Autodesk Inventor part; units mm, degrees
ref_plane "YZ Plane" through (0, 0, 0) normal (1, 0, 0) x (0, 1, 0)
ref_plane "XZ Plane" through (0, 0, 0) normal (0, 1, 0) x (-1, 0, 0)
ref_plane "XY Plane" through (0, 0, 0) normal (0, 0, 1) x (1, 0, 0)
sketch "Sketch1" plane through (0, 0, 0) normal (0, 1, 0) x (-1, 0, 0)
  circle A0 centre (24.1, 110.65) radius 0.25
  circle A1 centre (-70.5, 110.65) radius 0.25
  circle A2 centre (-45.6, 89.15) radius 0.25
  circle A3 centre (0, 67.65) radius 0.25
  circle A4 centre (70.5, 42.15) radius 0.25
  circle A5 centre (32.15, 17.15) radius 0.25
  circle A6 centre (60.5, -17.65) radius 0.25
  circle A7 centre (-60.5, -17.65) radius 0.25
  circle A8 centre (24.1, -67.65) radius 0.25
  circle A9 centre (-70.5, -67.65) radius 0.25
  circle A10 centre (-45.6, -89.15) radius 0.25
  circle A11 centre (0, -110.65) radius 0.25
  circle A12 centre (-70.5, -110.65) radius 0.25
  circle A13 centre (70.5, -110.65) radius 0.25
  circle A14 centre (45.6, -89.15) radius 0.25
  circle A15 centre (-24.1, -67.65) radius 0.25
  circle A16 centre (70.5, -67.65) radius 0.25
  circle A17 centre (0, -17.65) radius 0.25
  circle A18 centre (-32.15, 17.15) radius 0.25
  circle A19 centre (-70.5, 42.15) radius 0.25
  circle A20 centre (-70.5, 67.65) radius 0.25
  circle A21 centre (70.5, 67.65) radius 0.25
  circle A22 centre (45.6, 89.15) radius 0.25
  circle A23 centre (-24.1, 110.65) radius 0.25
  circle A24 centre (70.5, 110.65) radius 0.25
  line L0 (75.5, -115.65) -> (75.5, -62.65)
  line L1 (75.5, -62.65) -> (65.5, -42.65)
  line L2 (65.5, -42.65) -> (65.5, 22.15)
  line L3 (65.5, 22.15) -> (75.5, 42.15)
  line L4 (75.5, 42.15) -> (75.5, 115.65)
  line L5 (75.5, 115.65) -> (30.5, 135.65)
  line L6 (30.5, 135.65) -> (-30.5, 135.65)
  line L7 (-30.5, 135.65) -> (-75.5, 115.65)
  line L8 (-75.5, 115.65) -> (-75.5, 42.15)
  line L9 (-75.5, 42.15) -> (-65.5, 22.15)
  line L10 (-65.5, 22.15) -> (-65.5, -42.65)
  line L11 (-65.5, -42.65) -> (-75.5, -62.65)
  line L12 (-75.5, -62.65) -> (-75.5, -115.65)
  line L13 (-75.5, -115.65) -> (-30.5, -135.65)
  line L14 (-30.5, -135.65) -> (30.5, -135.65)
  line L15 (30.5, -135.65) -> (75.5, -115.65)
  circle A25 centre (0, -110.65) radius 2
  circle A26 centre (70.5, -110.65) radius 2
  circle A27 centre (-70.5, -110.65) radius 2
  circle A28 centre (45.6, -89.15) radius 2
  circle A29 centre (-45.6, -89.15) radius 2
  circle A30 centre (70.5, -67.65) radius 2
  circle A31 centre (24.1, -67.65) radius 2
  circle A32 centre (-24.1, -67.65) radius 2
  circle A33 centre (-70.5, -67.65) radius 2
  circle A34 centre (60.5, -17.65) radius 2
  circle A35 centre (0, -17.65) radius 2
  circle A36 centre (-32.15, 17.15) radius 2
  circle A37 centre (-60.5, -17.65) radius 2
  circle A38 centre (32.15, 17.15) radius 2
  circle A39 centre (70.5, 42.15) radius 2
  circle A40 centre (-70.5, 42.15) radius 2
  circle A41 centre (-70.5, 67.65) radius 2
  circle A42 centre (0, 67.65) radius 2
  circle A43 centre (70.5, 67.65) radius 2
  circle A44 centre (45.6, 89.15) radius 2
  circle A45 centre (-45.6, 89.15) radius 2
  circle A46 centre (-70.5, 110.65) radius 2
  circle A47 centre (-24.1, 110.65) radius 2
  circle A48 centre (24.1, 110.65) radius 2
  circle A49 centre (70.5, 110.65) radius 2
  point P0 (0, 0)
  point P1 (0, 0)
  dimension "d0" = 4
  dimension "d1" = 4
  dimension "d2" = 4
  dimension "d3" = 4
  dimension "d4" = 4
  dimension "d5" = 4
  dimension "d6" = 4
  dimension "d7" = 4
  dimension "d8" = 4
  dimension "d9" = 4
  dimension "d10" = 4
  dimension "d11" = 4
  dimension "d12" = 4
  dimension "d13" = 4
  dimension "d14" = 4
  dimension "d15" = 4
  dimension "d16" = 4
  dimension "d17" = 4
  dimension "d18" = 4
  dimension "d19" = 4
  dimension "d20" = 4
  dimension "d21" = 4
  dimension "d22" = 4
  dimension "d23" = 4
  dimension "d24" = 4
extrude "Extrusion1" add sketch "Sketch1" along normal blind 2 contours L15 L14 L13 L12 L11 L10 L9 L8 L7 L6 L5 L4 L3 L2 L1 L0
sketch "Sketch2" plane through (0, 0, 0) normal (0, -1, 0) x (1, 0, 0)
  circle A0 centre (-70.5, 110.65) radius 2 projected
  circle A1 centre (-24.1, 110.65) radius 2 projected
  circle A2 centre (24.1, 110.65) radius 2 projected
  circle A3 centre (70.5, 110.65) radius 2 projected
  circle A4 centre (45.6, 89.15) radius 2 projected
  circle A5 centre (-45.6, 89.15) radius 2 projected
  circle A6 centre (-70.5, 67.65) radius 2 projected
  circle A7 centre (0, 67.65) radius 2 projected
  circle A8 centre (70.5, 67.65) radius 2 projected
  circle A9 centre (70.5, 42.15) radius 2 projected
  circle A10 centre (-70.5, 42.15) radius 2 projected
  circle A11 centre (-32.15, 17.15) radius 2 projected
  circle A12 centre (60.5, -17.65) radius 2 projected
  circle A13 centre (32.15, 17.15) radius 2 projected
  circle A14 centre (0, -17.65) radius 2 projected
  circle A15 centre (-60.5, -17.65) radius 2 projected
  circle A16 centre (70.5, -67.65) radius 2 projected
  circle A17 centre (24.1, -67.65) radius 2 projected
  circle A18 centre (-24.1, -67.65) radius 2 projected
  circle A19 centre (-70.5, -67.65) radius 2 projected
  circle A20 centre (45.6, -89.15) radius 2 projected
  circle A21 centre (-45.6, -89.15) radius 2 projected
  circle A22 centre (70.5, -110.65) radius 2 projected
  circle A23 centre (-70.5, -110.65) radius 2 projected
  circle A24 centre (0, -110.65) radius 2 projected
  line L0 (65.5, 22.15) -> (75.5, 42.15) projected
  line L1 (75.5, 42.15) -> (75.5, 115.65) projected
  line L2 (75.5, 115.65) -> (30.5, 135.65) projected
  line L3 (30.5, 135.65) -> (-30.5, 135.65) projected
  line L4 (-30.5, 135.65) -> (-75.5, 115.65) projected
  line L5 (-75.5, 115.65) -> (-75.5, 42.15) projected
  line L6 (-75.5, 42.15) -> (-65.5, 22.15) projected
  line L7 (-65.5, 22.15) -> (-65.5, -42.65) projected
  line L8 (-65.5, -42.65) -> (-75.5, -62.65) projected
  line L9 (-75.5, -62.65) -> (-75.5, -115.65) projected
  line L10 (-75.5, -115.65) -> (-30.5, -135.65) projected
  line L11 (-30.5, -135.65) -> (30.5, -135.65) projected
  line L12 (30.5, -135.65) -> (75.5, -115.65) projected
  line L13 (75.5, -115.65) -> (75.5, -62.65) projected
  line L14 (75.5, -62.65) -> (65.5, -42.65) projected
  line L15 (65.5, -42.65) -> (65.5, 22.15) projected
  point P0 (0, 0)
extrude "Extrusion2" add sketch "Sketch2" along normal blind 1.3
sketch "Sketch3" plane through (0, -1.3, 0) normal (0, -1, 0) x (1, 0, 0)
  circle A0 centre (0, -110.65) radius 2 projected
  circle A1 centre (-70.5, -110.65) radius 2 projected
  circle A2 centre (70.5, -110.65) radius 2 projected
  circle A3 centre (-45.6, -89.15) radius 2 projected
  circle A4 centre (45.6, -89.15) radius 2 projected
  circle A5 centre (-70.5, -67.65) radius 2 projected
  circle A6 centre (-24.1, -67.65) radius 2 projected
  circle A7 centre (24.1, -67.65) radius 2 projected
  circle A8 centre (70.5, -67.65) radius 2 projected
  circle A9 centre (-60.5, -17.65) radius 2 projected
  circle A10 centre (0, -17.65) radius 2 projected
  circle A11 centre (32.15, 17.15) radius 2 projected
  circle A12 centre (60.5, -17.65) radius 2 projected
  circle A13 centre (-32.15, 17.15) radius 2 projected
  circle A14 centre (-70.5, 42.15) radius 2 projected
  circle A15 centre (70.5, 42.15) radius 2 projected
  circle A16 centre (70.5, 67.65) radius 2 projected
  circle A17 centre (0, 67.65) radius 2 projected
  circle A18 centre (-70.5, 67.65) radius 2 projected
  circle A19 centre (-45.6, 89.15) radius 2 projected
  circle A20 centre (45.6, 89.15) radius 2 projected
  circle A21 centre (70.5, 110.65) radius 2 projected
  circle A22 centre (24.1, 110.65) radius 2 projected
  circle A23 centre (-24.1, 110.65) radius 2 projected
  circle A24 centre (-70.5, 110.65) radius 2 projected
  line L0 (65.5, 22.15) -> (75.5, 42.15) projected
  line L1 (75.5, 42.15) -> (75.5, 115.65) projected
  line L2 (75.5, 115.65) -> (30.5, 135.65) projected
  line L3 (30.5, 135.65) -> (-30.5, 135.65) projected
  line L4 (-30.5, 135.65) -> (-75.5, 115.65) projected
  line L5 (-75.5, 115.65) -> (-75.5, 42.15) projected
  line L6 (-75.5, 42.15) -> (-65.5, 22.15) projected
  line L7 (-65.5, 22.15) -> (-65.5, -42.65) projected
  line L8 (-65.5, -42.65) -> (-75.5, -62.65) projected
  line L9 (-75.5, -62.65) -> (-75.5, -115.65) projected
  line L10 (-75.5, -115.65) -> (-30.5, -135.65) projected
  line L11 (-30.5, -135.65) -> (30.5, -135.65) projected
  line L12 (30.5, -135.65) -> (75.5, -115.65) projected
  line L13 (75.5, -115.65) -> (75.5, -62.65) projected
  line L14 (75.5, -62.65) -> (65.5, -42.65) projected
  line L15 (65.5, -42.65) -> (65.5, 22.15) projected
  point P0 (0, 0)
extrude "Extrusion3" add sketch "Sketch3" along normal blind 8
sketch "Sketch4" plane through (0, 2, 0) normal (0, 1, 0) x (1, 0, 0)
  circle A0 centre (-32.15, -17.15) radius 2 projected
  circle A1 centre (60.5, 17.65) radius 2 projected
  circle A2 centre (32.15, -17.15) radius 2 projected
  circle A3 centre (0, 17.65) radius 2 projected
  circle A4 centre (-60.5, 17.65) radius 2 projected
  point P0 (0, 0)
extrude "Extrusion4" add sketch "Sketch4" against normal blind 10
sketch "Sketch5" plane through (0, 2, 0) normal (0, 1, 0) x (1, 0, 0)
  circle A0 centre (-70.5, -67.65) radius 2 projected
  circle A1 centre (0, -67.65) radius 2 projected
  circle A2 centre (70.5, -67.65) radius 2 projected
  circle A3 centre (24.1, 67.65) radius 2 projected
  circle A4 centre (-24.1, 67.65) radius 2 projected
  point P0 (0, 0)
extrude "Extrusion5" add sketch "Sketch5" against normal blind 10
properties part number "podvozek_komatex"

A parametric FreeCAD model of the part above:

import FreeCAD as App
import Part
import Sketcher
from FreeCAD import Vector


def add_polygon(sketch, points):
    """Adds a closed chain of lines whose ends are joined by coincident constraints."""
    first, n = sketch.GeometryCount, len(points)
    for a, b in zip(points, points[1:] + points[:1]):
        sketch.addGeometry(Part.LineSegment(App.Vector(*a, 0), App.Vector(*b, 0)), False)
    for i in range(n):
        sketch.addConstraint(Sketcher.Constraint("Coincident", first + i, 2, first + (i + 1) % n, 1))

doc = App.newDocument("Part")
body = doc.addObject("PartDesign::Body", "Body")

# Sketch on XZ plane
sketch1 = doc.addObject("Sketcher::SketchObject", "Sketch")
body.addObject(sketch1)
sketch1.AttachmentSupport = (doc.XZ_Plane, [""])
sketch1.MapMode = "FlatFace"
add_polygon(sketch1, [(-30.5, -135.65), (-75.5, -115.65), (-75.5, -62.65), (-65.5, -42.65), (-65.5, 22.15), (-75.5, 42.15), (-75.5, 115.65), (-30.5, 135.65), (30.5, 135.65), (75.5, 115.65), (75.5, 42.15), (65.5, 22.15), (65.5, -42.65), (75.5, -62.65), (75.5, -115.65), (30.5, -135.65)])  # lines 0-15
sketch1.addGeometry(Part.Circle(Vector(70.5, -110.65, 0), Vector(0, 0, 1), 2), False)  # 16
sketch1.addGeometry(Part.Circle(Vector(45.6, -89.15, 0), Vector(0, 0, 1), 2), False)  # 17
sketch1.addGeometry(Part.Circle(Vector(70.5, -67.65, 0), Vector(0, 0, 1), 2), False)  # 18
sketch1.addGeometry(Part.Circle(Vector(60.5, -17.65, 0), Vector(0, 0, 1), 2), False)  # 19
sketch1.addGeometry(Part.Circle(Vector(24.1, -67.65, 0), Vector(0, 0, 1), 2), False)  # 20
sketch1.addGeometry(Part.Circle(Vector(0, -110.65, 0), Vector(0, 0, 1), 2), False)  # 21
sketch1.addGeometry(Part.Circle(Vector(-70.5, -110.65, 0), Vector(0, 0, 1), 2), False)  # 22
sketch1.addGeometry(Part.Circle(Vector(-45.6, -89.15, 0), Vector(0, 0, 1), 2), False)  # 23
sketch1.addGeometry(Part.Circle(Vector(-24.1, -67.65, 0), Vector(0, 0, 1), 2), False)  # 24
sketch1.addGeometry(Part.Circle(Vector(0, -17.65, 0), Vector(0, 0, 1), 2), False)  # 25
sketch1.addGeometry(Part.Circle(Vector(-70.5, -67.65, 0), Vector(0, 0, 1), 2), False)  # 26
sketch1.addGeometry(Part.Circle(Vector(-60.5, -17.65, 0), Vector(0, 0, 1), 2), False)  # 27
sketch1.addGeometry(Part.Circle(Vector(70.5, 42.15, 0), Vector(0, 0, 1), 2), False)  # 28
sketch1.addGeometry(Part.Circle(Vector(70.5, 67.65, 0), Vector(0, 0, 1), 2), False)  # 29
sketch1.addGeometry(Part.Circle(Vector(32.15, 17.15, 0), Vector(0, 0, 1), 2), False)  # 30
sketch1.addGeometry(Part.Circle(Vector(45.6, 89.15, 0), Vector(0, 0, 1), 2), False)  # 31
sketch1.addGeometry(Part.Circle(Vector(70.5, 110.65, 0), Vector(0, 0, 1), 2), False)  # 32
sketch1.addGeometry(Part.Circle(Vector(24.1, 110.65, 0), Vector(0, 0, 1), 2), False)  # 33
sketch1.addGeometry(Part.Circle(Vector(-32.15, 17.15, 0), Vector(0, 0, 1), 2), False)  # 34
sketch1.addGeometry(Part.Circle(Vector(0, 67.65, 0), Vector(0, 0, 1), 2), False)  # 35
sketch1.addGeometry(Part.Circle(Vector(-70.5, 42.15, 0), Vector(0, 0, 1), 2), False)  # 36
sketch1.addGeometry(Part.Circle(Vector(-70.5, 67.65, 0), Vector(0, 0, 1), 2), False)  # 37
sketch1.addGeometry(Part.Circle(Vector(-24.1, 110.65, 0), Vector(0, 0, 1), 2), False)  # 38
sketch1.addGeometry(Part.Circle(Vector(-45.6, 89.15, 0), Vector(0, 0, 1), 2), False)  # 39
sketch1.addGeometry(Part.Circle(Vector(-70.5, 110.65, 0), Vector(0, 0, 1), 2), False)  # 40
sketch1.addConstraint([
    Sketcher.Constraint("Vertical", 1),
    Sketcher.Constraint("Vertical", 3),
    Sketcher.Constraint("Vertical", 5),
    Sketcher.Constraint("Horizontal", 7),
    Sketcher.Constraint("Vertical", 9),
    Sketcher.Constraint("Vertical", 11),
    Sketcher.Constraint("Vertical", 13),
    Sketcher.Constraint("Horizontal", 15),
    Sketcher.Constraint("Equal", 16, 17),
    Sketcher.Constraint("Equal", 17, 18),
    Sketcher.Constraint("Equal", 18, 19),
    Sketcher.Constraint("Equal", 19, 20),
    Sketcher.Constraint("Equal", 20, 21),
    Sketcher.Constraint("Equal", 21, 22),
    Sketcher.Constraint("Equal", 22, 23),
    Sketcher.Constraint("Equal", 23, 24),
    Sketcher.Constraint("Equal", 24, 25),
    Sketcher.Constraint("Equal", 25, 26),
    Sketcher.Constraint("Equal", 26, 27),
    Sketcher.Constraint("Equal", 27, 28),
    Sketcher.Constraint("Equal", 28, 29),
    Sketcher.Constraint("Equal", 29, 30),
    Sketcher.Constraint("Equal", 30, 31),
    Sketcher.Constraint("Equal", 31, 32),
    Sketcher.Constraint("Equal", 32, 33),
    Sketcher.Constraint("Equal", 33, 34),
    Sketcher.Constraint("Equal", 34, 35),
    Sketcher.Constraint("Equal", 35, 36),
    Sketcher.Constraint("Equal", 36, 37),
    Sketcher.Constraint("Equal", 37, 38),
    Sketcher.Constraint("Equal", 38, 39),
    Sketcher.Constraint("Equal", 39, 40),
    Sketcher.Constraint("Symmetric", 26, 3, 29, 3, -1, 1),
    Sketcher.Constraint("Symmetric", 23, 3, 31, 3, -1, 1),
    Sketcher.Constraint("Symmetric", 22, 3, 32, 3, -1, 1),
    Sketcher.Constraint("Symmetric", 18, 3, 37, 3, -1, 1),
    Sketcher.Constraint("Symmetric", 17, 3, 39, 3, -1, 1),
    Sketcher.Constraint("Symmetric", 16, 3, 40, 3, -1, 1),
    Sketcher.Constraint("Symmetric", 0, 2, 8, 2, -1, 1),
    Sketcher.Constraint("Symmetric", 5, 2, 13, 2, -1, 1),
    Sketcher.Constraint("Symmetric", 6, 2, 14, 2, -1, 1),
    Sketcher.Constraint("Symmetric", 16, 3, 22, 3, -2),
    Sketcher.Constraint("Symmetric", 17, 3, 23, 3, -2),
    Sketcher.Constraint("Symmetric", 20, 3, 24, 3, -2),
    Sketcher.Constraint("Symmetric", 18, 3, 26, 3, -2),
    Sketcher.Constraint("Symmetric", 19, 3, 27, 3, -2),
    Sketcher.Constraint("Symmetric", 30, 3, 34, 3, -2),
    Sketcher.Constraint("Symmetric", 28, 3, 36, 3, -2),
    Sketcher.Constraint("Symmetric", 33, 3, 38, 3, -2),
    Sketcher.Constraint("Symmetric", 5, 2, 8, 2, -2),
    Sketcher.Constraint("Symmetric", 3, 2, 10, 2, -2),
    Sketcher.Constraint("PointOnObject", 21, 3, -2),
    Sketcher.Constraint("PointOnObject", 25, 3, -2),
    Sketcher.Constraint("PointOnObject", 35, 3, -2),
    Sketcher.Constraint("Parallel", 0, 8),
    Sketcher.Constraint("Parallel", 2, 10),
    Sketcher.Constraint("Parallel", 4, 12),
    Sketcher.Constraint("Horizontal", 18, 3, 20, 3),
    Sketcher.Constraint("Horizontal", 16, 3, 21, 3),
    Sketcher.Constraint("Horizontal", 19, 3, 25, 3),
    Sketcher.Constraint("Horizontal", 32, 3, 33, 3),
    Sketcher.Constraint("Horizontal", 29, 3, 35, 3),
    Sketcher.Constraint("Horizontal", 36, 3, 4, 2),
    Sketcher.Constraint("Horizontal", 4, 2, 9, 2),
    Sketcher.Constraint("Horizontal", 2, 2, 11, 2),
    Sketcher.Constraint("Vertical", 16, 3, 18, 3),
    Sketcher.Constraint("Vertical", 18, 3, 28, 3),
    Sketcher.Constraint("Vertical", 20, 3, 33, 3),
    Sketcher.Constraint("Vertical", 7, 2, 14, 2),
    Sketcher.Constraint("Diameter", 16, 4.0),
    Sketcher.Constraint("DistanceX", 7, 1, 7, 2, 61.0),
    Sketcher.Constraint("DistanceY", 1, 1, 1, 2, 53.0),
    Sketcher.Constraint("DistanceY", 3, 1, 3, 2, 64.8),
    Sketcher.Constraint("DistanceY", 5, 1, 5, 2, 73.5),
    Sketcher.Constraint("DistanceY", 16, 3, 18, 3, 43.0),
    Sketcher.Constraint("DistanceX", 19, 3, 18, 3, 10.0),
    Sketcher.Constraint("DistanceY", 18, 3, 19, 3, 50.0),
    Sketcher.Constraint("DistanceX", 22, 3, 16, 3, 141.0),
    Sketcher.Constraint("DistanceY", 30, 3, 28, 3, 25.0),
    Sketcher.Constraint("DistanceY", 28, 3, 31, 3, 47.0),
    Sketcher.Constraint("DistanceX", 0, 2, 22, 3, 5.0),
    Sketcher.Constraint("DistanceY", 0, 2, 22, 3, 5.0),
    Sketcher.Constraint("DistanceX", 1, 2, 2, 2, 10.0),
    Sketcher.Constraint("DistanceY", 1, 2, 2, 2, 20.0),
    Sketcher.Constraint("DistanceY", 38, 3, 6, 2, 25.0),
    Sketcher.Constraint("DistanceX", -1, 1, 17, 3, 45.6),
    Sketcher.Constraint("DistanceX", -1, 1, 20, 3, 24.1),
    Sketcher.Constraint("DistanceX", 34, 3, 30, 3, 64.3),
])
pad1 = doc.addObject("PartDesign::Pad", "Pad")
body.addObject(pad1)
pad1.Profile = sketch1
pad1.Length = 2
pad1.Reversed = True

# Sketch on XZ plane
sketch2 = doc.addObject("Sketcher::SketchObject", "Sketch001")
body.addObject(sketch2)
sketch2.AttachmentSupport = (doc.XZ_Plane, [""])
sketch2.MapMode = "FlatFace"
add_polygon(sketch2, [(65.5, -42.65), (65.5, 22.15), (75.5, 42.15), (75.5, 115.65), (30.5, 135.65), (-30.5, 135.65), (-75.5, 115.65), (-75.5, 42.15), (-65.5, 22.15), (-65.5, -42.65), (-75.5, -62.65), (-75.5, -115.65), (-30.5, -135.65), (30.5, -135.65), (75.5, -115.65), (75.5, -62.65)])  # lines 0-15
sketch2.addGeometry(Part.Circle(Vector(-70.5, -110.65, 0), Vector(0, 0, 1), 2), False)  # 16
sketch2.addGeometry(Part.Circle(Vector(-45.6, -89.15, 0), Vector(0, 0, 1), 2), False)  # 17
sketch2.addGeometry(Part.Circle(Vector(-70.5, -67.65, 0), Vector(0, 0, 1), 2), False)  # 18
sketch2.addGeometry(Part.Circle(Vector(-60.5, -17.65, 0), Vector(0, 0, 1), 2), False)  # 19
sketch2.addGeometry(Part.Circle(Vector(-24.1, -67.65, 0), Vector(0, 0, 1), 2), False)  # 20
sketch2.addGeometry(Part.Circle(Vector(0, -110.65, 0), Vector(0, 0, 1), 2), False)  # 21
sketch2.addGeometry(Part.Circle(Vector(70.5, -110.65, 0), Vector(0, 0, 1), 2), False)  # 22
sketch2.addGeometry(Part.Circle(Vector(45.6, -89.15, 0), Vector(0, 0, 1), 2), False)  # 23
sketch2.addGeometry(Part.Circle(Vector(24.1, -67.65, 0), Vector(0, 0, 1), 2), False)  # 24
sketch2.addGeometry(Part.Circle(Vector(0, -17.65, 0), Vector(0, 0, 1), 2), False)  # 25
sketch2.addGeometry(Part.Circle(Vector(70.5, -67.65, 0), Vector(0, 0, 1), 2), False)  # 26
sketch2.addGeometry(Part.Circle(Vector(60.5, -17.65, 0), Vector(0, 0, 1), 2), False)  # 27
sketch2.addGeometry(Part.Circle(Vector(-70.5, 42.15, 0), Vector(0, 0, 1), 2), False)  # 28
sketch2.addGeometry(Part.Circle(Vector(-70.5, 67.65, 0), Vector(0, 0, 1), 2), False)  # 29
sketch2.addGeometry(Part.Circle(Vector(-32.15, 17.15, 0), Vector(0, 0, 1), 2), False)  # 30
sketch2.addGeometry(Part.Circle(Vector(-45.6, 89.15, 0), Vector(0, 0, 1), 2), False)  # 31
sketch2.addGeometry(Part.Circle(Vector(-70.5, 110.65, 0), Vector(0, 0, 1), 2), False)  # 32
sketch2.addGeometry(Part.Circle(Vector(-24.1, 110.65, 0), Vector(0, 0, 1), 2), False)  # 33
sketch2.addGeometry(Part.Circle(Vector(32.15, 17.15, 0), Vector(0, 0, 1), 2), False)  # 34
sketch2.addGeometry(Part.Circle(Vector(0, 67.65, 0), Vector(0, 0, 1), 2), False)  # 35
sketch2.addGeometry(Part.Circle(Vector(70.5, 42.15, 0), Vector(0, 0, 1), 2), False)  # 36
sketch2.addGeometry(Part.Circle(Vector(70.5, 67.65, 0), Vector(0, 0, 1), 2), False)  # 37
sketch2.addGeometry(Part.Circle(Vector(24.1, 110.65, 0), Vector(0, 0, 1), 2), False)  # 38
sketch2.addGeometry(Part.Circle(Vector(45.6, 89.15, 0), Vector(0, 0, 1), 2), False)  # 39
sketch2.addGeometry(Part.Circle(Vector(70.5, 110.65, 0), Vector(0, 0, 1), 2), False)  # 40
sketch2.addConstraint([
    Sketcher.Constraint("Vertical", 0),
    Sketcher.Constraint("Vertical", 2),
    Sketcher.Constraint("Horizontal", 4),
    Sketcher.Constraint("Vertical", 6),
    Sketcher.Constraint("Vertical", 8),
    Sketcher.Constraint("Vertical", 10),
    Sketcher.Constraint("Horizontal", 12),
    Sketcher.Constraint("Vertical", 14),
    Sketcher.Constraint("Equal", 16, 17),
    Sketcher.Constraint("Equal", 17, 18),
    Sketcher.Constraint("Equal", 18, 19),
    Sketcher.Constraint("Equal", 19, 20),
    Sketcher.Constraint("Equal", 20, 21),
    Sketcher.Constraint("Equal", 21, 22),
    Sketcher.Constraint("Equal", 22, 23),
    Sketcher.Constraint("Equal", 23, 24),
    Sketcher.Constraint("Equal", 24, 25),
    Sketcher.Constraint("Equal", 25, 26),
    Sketcher.Constraint("Equal", 26, 27),
    Sketcher.Constraint("Equal", 27, 28),
    Sketcher.Constraint("Equal", 28, 29),
    Sketcher.Constraint("Equal", 29, 30),
    Sketcher.Constraint("Equal", 30, 31),
    Sketcher.Constraint("Equal", 31, 32),
    Sketcher.Constraint("Equal", 32, 33),
    Sketcher.Constraint("Equal", 33, 34),
    Sketcher.Constraint("Equal", 34, 35),
    Sketcher.Constraint("Equal", 35, 36),
    Sketcher.Constraint("Equal", 36, 37),
    Sketcher.Constraint("Equal", 37, 38),
    Sketcher.Constraint("Equal", 38, 39),
    Sketcher.Constraint("Equal", 39, 40),
    Sketcher.Constraint("Symmetric", 26, 3, 29, 3, -1, 1),
    Sketcher.Constraint("Symmetric", 23, 3, 31, 3, -1, 1),
    Sketcher.Constraint("Symmetric", 22, 3, 32, 3, -1, 1),
    Sketcher.Constraint("Symmetric", 18, 3, 37, 3, -1, 1),
    Sketcher.Constraint("Symmetric", 17, 3, 39, 3, -1, 1),
    Sketcher.Constraint("Symmetric", 16, 3, 40, 3, -1, 1),
    Sketcher.Constraint("Symmetric", 2, 2, 10, 2, -1, 1),
    Sketcher.Constraint("Symmetric", 3, 2, 11, 2, -1, 1),
    Sketcher.Constraint("Symmetric", 5, 2, 13, 2, -1, 1),
    Sketcher.Constraint("Symmetric", 16, 3, 22, 3, -2),
    Sketcher.Constraint("Symmetric", 17, 3, 23, 3, -2),
    Sketcher.Constraint("Symmetric", 20, 3, 24, 3, -2),
    Sketcher.Constraint("Symmetric", 18, 3, 26, 3, -2),
    Sketcher.Constraint("Symmetric", 19, 3, 27, 3, -2),
    Sketcher.Constraint("Symmetric", 30, 3, 34, 3, -2),
    Sketcher.Constraint("Symmetric", 28, 3, 36, 3, -2),
    Sketcher.Constraint("Symmetric", 33, 3, 38, 3, -2),
    Sketcher.Constraint("Symmetric", 2, 2, 5, 2, -2),
    Sketcher.Constraint("Symmetric", 0, 2, 7, 2, -2),
    Sketcher.Constraint("PointOnObject", 21, 3, -2),
    Sketcher.Constraint("PointOnObject", 25, 3, -2),
    Sketcher.Constraint("PointOnObject", 35, 3, -2),
    Sketcher.Constraint("Parallel", 1, 9),
    Sketcher.Constraint("Parallel", 5, 13),
    Sketcher.Constraint("Parallel", 7, 15),
    Sketcher.Constraint("Horizontal", 18, 3, 20, 3),
    Sketcher.Constraint("Horizontal", 16, 3, 21, 3),
    Sketcher.Constraint("Horizontal", 19, 3, 25, 3),
    Sketcher.Constraint("Horizontal", 32, 3, 33, 3),
    Sketcher.Constraint("Horizontal", 29, 3, 35, 3),
    Sketcher.Constraint("Horizontal", 36, 3, 1, 2),
    Sketcher.Constraint("Horizontal", 1, 2, 6, 2),
    Sketcher.Constraint("Horizontal", 9, 2, 14, 2),
    Sketcher.Constraint("Vertical", 16, 3, 18, 3),
    Sketcher.Constraint("Vertical", 18, 3, 28, 3),
    Sketcher.Constraint("Vertical", 20, 3, 33, 3),
    Sketcher.Constraint("Vertical", 4, 2, 11, 2),
    Sketcher.Constraint("Diameter", 16, 4.0),
    Sketcher.Constraint("DistanceX", 4, 2, 4, 1, 61.0),
    Sketcher.Constraint("DistanceY", 10, 2, 10, 1, 53.0),
    Sketcher.Constraint("DistanceY", 0, 1, 0, 2, 64.8),
    Sketcher.Constraint("DistanceY", 2, 1, 2, 2, 73.5),
    Sketcher.Constraint("DistanceY", 16, 3, 18, 3, 43.0),
    Sketcher.Constraint("DistanceX", 18, 3, 19, 3, 10.0),
    Sketcher.Constraint("DistanceY", 18, 3, 19, 3, 50.0),
    Sketcher.Constraint("DistanceX", 16, 3, 22, 3, 141.0),
    Sketcher.Constraint("DistanceY", 30, 3, 28, 3, 25.0),
    Sketcher.Constraint("DistanceY", 28, 3, 31, 3, 47.0),
    Sketcher.Constraint("DistanceX", 0, 2, 36, 3, 5.0),
    Sketcher.Constraint("DistanceY", 0, 2, 36, 3, 20.0),
    Sketcher.Constraint("DistanceX", 36, 3, 1, 2, 5.0),
    Sketcher.Constraint("DistanceY", 40, 3, 2, 2, 5.0),
    Sketcher.Constraint("DistanceY", 38, 3, 3, 2, 25.0),
    Sketcher.Constraint("DistanceX", 17, 3, -1, 1, 45.6),
    Sketcher.Constraint("DistanceX", 20, 3, -1, 1, 24.1),
    Sketcher.Constraint("DistanceX", 30, 3, 34, 3, 64.3),
])
pad2 = doc.addObject("PartDesign::Pad", "Pad001")
body.addObject(pad2)
pad2.Profile = sketch2
pad2.Length = 1.3

# Sketch on XZ plane
sketch3 = doc.addObject("Sketcher::SketchObject", "Sketch002")
body.addObject(sketch3)
sketch3.AttachmentSupport = (doc.XZ_Plane, [""])
sketch3.MapMode = "FlatFace"
sketch3.AttachmentOffset = App.Placement(Vector(0, 0, 1.3), App.Rotation())
add_polygon(sketch3, [(65.5, -42.65), (65.5, 22.15), (75.5, 42.15), (75.5, 115.65), (30.5, 135.65), (-30.5, 135.65), (-75.5, 115.65), (-75.5, 42.15), (-65.5, 22.15), (-65.5, -42.65), (-75.5, -62.65), (-75.5, -115.65), (-30.5, -135.65), (30.5, -135.65), (75.5, -115.65), (75.5, -62.65)])  # lines 0-15
sketch3.addGeometry(Part.Circle(Vector(-70.5, -110.65, 0), Vector(0, 0, 1), 2), False)  # 16
sketch3.addGeometry(Part.Circle(Vector(-45.6, -89.15, 0), Vector(0, 0, 1), 2), False)  # 17
sketch3.addGeometry(Part.Circle(Vector(-70.5, -67.65, 0), Vector(0, 0, 1), 2), False)  # 18
sketch3.addGeometry(Part.Circle(Vector(-60.5, -17.65, 0), Vector(0, 0, 1), 2), False)  # 19
sketch3.addGeometry(Part.Circle(Vector(-24.1, -67.65, 0), Vector(0, 0, 1), 2), False)  # 20
sketch3.addGeometry(Part.Circle(Vector(0, -110.65, 0), Vector(0, 0, 1), 2), False)  # 21
sketch3.addGeometry(Part.Circle(Vector(70.5, -110.65, 0), Vector(0, 0, 1), 2), False)  # 22
sketch3.addGeometry(Part.Circle(Vector(45.6, -89.15, 0), Vector(0, 0, 1), 2), False)  # 23
sketch3.addGeometry(Part.Circle(Vector(24.1, -67.65, 0), Vector(0, 0, 1), 2), False)  # 24
sketch3.addGeometry(Part.Circle(Vector(0, -17.65, 0), Vector(0, 0, 1), 2), False)  # 25
sketch3.addGeometry(Part.Circle(Vector(70.5, -67.65, 0), Vector(0, 0, 1), 2), False)  # 26
sketch3.addGeometry(Part.Circle(Vector(60.5, -17.65, 0), Vector(0, 0, 1), 2), False)  # 27
sketch3.addGeometry(Part.Circle(Vector(-70.5, 42.15, 0), Vector(0, 0, 1), 2), False)  # 28
sketch3.addGeometry(Part.Circle(Vector(-70.5, 67.65, 0), Vector(0, 0, 1), 2), False)  # 29
sketch3.addGeometry(Part.Circle(Vector(-32.15, 17.15, 0), Vector(0, 0, 1), 2), False)  # 30
sketch3.addGeometry(Part.Circle(Vector(-45.6, 89.15, 0), Vector(0, 0, 1), 2), False)  # 31
sketch3.addGeometry(Part.Circle(Vector(-70.5, 110.65, 0), Vector(0, 0, 1), 2), False)  # 32
sketch3.addGeometry(Part.Circle(Vector(-24.1, 110.65, 0), Vector(0, 0, 1), 2), False)  # 33
sketch3.addGeometry(Part.Circle(Vector(32.15, 17.15, 0), Vector(0, 0, 1), 2), False)  # 34
sketch3.addGeometry(Part.Circle(Vector(0, 67.65, 0), Vector(0, 0, 1), 2), False)  # 35
sketch3.addGeometry(Part.Circle(Vector(70.5, 42.15, 0), Vector(0, 0, 1), 2), False)  # 36
sketch3.addGeometry(Part.Circle(Vector(70.5, 67.65, 0), Vector(0, 0, 1), 2), False)  # 37
sketch3.addGeometry(Part.Circle(Vector(24.1, 110.65, 0), Vector(0, 0, 1), 2), False)  # 38
sketch3.addGeometry(Part.Circle(Vector(45.6, 89.15, 0), Vector(0, 0, 1), 2), False)  # 39
sketch3.addGeometry(Part.Circle(Vector(70.5, 110.65, 0), Vector(0, 0, 1), 2), False)  # 40
sketch3.addConstraint([
    Sketcher.Constraint("Vertical", 0),
    Sketcher.Constraint("Vertical", 2),
    Sketcher.Constraint("Horizontal", 4),
    Sketcher.Constraint("Vertical", 6),
    Sketcher.Constraint("Vertical", 8),
    Sketcher.Constraint("Vertical", 10),
    Sketcher.Constraint("Horizontal", 12),
    Sketcher.Constraint("Vertical", 14),
    Sketcher.Constraint("Equal", 16, 17),
    Sketcher.Constraint("Equal", 17, 18),
    Sketcher.Constraint("Equal", 18, 19),
    Sketcher.Constraint("Equal", 19, 20),
    Sketcher.Constraint("Equal", 20, 21),
    Sketcher.Constraint("Equal", 21, 22),
    Sketcher.Constraint("Equal", 22, 23),
    Sketcher.Constraint("Equal", 23, 24),
    Sketcher.Constraint("Equal", 24, 25),
    Sketcher.Constraint("Equal", 25, 26),
    Sketcher.Constraint("Equal", 26, 27),
    Sketcher.Constraint("Equal", 27, 28),
    Sketcher.Constraint("Equal", 28, 29),
    Sketcher.Constraint("Equal", 29, 30),
    Sketcher.Constraint("Equal", 30, 31),
    Sketcher.Constraint("Equal", 31, 32),
    Sketcher.Constraint("Equal", 32, 33),
    Sketcher.Constraint("Equal", 33, 34),
    Sketcher.Constraint("Equal", 34, 35),
    Sketcher.Constraint("Equal", 35, 36),
    Sketcher.Constraint("Equal", 36, 37),
    Sketcher.Constraint("Equal", 37, 38),
    Sketcher.Constraint("Equal", 38, 39),
    Sketcher.Constraint("Equal", 39, 40),
    Sketcher.Constraint("Symmetric", 26, 3, 29, 3, -1, 1),
    Sketcher.Constraint("Symmetric", 23, 3, 31, 3, -1, 1),
    Sketcher.Constraint("Symmetric", 22, 3, 32, 3, -1, 1),
    Sketcher.Constraint("Symmetric", 18, 3, 37, 3, -1, 1),
    Sketcher.Constraint("Symmetric", 17, 3, 39, 3, -1, 1),
    Sketcher.Constraint("Symmetric", 16, 3, 40, 3, -1, 1),
    Sketcher.Constraint("Symmetric", 2, 2, 10, 2, -1, 1),
    Sketcher.Constraint("Symmetric", 3, 2, 11, 2, -1, 1),
    Sketcher.Constraint("Symmetric", 5, 2, 13, 2, -1, 1),
    Sketcher.Constraint("Symmetric", 16, 3, 22, 3, -2),
    Sketcher.Constraint("Symmetric", 17, 3, 23, 3, -2),
    Sketcher.Constraint("Symmetric", 20, 3, 24, 3, -2),
    Sketcher.Constraint("Symmetric", 18, 3, 26, 3, -2),
    Sketcher.Constraint("Symmetric", 19, 3, 27, 3, -2),
    Sketcher.Constraint("Symmetric", 30, 3, 34, 3, -2),
    Sketcher.Constraint("Symmetric", 28, 3, 36, 3, -2),
    Sketcher.Constraint("Symmetric", 33, 3, 38, 3, -2),
    Sketcher.Constraint("Symmetric", 2, 2, 5, 2, -2),
    Sketcher.Constraint("Symmetric", 0, 2, 7, 2, -2),
    Sketcher.Constraint("PointOnObject", 21, 3, -2),
    Sketcher.Constraint("PointOnObject", 25, 3, -2),
    Sketcher.Constraint("PointOnObject", 35, 3, -2),
    Sketcher.Constraint("Parallel", 1, 9),
    Sketcher.Constraint("Parallel", 5, 13),
    Sketcher.Constraint("Parallel", 7, 15),
    Sketcher.Constraint("Horizontal", 18, 3, 20, 3),
    Sketcher.Constraint("Horizontal", 16, 3, 21, 3),
    Sketcher.Constraint("Horizontal", 19, 3, 25, 3),
    Sketcher.Constraint("Horizontal", 32, 3, 33, 3),
    Sketcher.Constraint("Horizontal", 29, 3, 35, 3),
    Sketcher.Constraint("Horizontal", 36, 3, 1, 2),
    Sketcher.Constraint("Horizontal", 1, 2, 6, 2),
    Sketcher.Constraint("Horizontal", 9, 2, 14, 2),
    Sketcher.Constraint("Vertical", 16, 3, 18, 3),
    Sketcher.Constraint("Vertical", 18, 3, 28, 3),
    Sketcher.Constraint("Vertical", 20, 3, 33, 3),
    Sketcher.Constraint("Vertical", 4, 2, 11, 2),
    Sketcher.Constraint("Diameter", 16, 4.0),
    Sketcher.Constraint("DistanceX", 4, 2, 4, 1, 61.0),
    Sketcher.Constraint("DistanceY", 10, 2, 10, 1, 53.0),
    Sketcher.Constraint("DistanceY", 0, 1, 0, 2, 64.8),
    Sketcher.Constraint("DistanceY", 2, 1, 2, 2, 73.5),
    Sketcher.Constraint("DistanceY", 16, 3, 18, 3, 43.0),
    Sketcher.Constraint("DistanceX", 18, 3, 19, 3, 10.0),
    Sketcher.Constraint("DistanceY", 18, 3, 19, 3, 50.0),
    Sketcher.Constraint("DistanceX", 16, 3, 22, 3, 141.0),
    Sketcher.Constraint("DistanceY", 30, 3, 28, 3, 25.0),
    Sketcher.Constraint("DistanceY", 28, 3, 31, 3, 47.0),
    Sketcher.Constraint("DistanceX", 0, 2, 36, 3, 5.0),
    Sketcher.Constraint("DistanceY", 0, 2, 36, 3, 20.0),
    Sketcher.Constraint("DistanceX", 36, 3, 1, 2, 5.0),
    Sketcher.Constraint("DistanceY", 40, 3, 2, 2, 5.0),
    Sketcher.Constraint("DistanceY", 38, 3, 3, 2, 25.0),
    Sketcher.Constraint("DistanceX", 17, 3, -1, 1, 45.6),
    Sketcher.Constraint("DistanceX", 20, 3, -1, 1, 24.1),
    Sketcher.Constraint("DistanceX", 30, 3, 34, 3, 64.3),
])
pad3 = doc.addObject("PartDesign::Pad", "Pad002")
body.addObject(pad3)
pad3.Profile = sketch3
pad3.Length = 8

# Sketch on XZ plane
sketch4 = doc.addObject("Sketcher::SketchObject", "Sketch003")
body.addObject(sketch4)
sketch4.AttachmentSupport = (doc.XZ_Plane, [""])
sketch4.MapMode = "FlatFace"
sketch4.AttachmentOffset = App.Placement(Vector(0, 0, -2), App.Rotation())
sketch4.addGeometry([
    Part.Circle(Vector(-32.15, 17.15, 0), Vector(0, 0, 1), 2),  # 0
    Part.Circle(Vector(60.5, -17.65, 0), Vector(0, 0, 1), 2),  # 1
    Part.Circle(Vector(32.15, 17.15, 0), Vector(0, 0, 1), 2),  # 2
    Part.Circle(Vector(0, -17.65, 0), Vector(0, 0, 1), 2),  # 3
    Part.Circle(Vector(-60.5, -17.65, 0), Vector(0, 0, 1), 2),  # 4
], False)
sketch4.addConstraint([
    Sketcher.Constraint("Equal", 0, 1),
    Sketcher.Constraint("Equal", 1, 2),
    Sketcher.Constraint("Equal", 2, 3),
    Sketcher.Constraint("Equal", 3, 4),
    Sketcher.Constraint("Symmetric", 0, 3, 2, 3, -2),
    Sketcher.Constraint("Symmetric", 1, 3, 4, 3, -2),
    Sketcher.Constraint("PointOnObject", 3, 3, -2),
    Sketcher.Constraint("Horizontal", 1, 3, 3, 3),
    Sketcher.Constraint("Diameter", 0, 4.0),
    Sketcher.Constraint("DistanceX", 4, 3, 1, 3, 121.0),
    Sketcher.Constraint("DistanceY", 1, 3, 0, 3, 34.8),
    Sketcher.Constraint("DistanceX", 0, 3, 2, 3, 64.3),
    Sketcher.Constraint("DistanceY", -1, 1, 0, 3, 17.15),
])
pad4 = doc.addObject("PartDesign::Pad", "Pad003")
body.addObject(pad4)
pad4.Profile = sketch4
pad4.Length = 10

# Sketch on XZ plane
sketch5 = doc.addObject("Sketcher::SketchObject", "Sketch004")
body.addObject(sketch5)
sketch5.AttachmentSupport = (doc.XZ_Plane, [""])
sketch5.MapMode = "FlatFace"
sketch5.AttachmentOffset = App.Placement(Vector(0, 0, -2), App.Rotation())
sketch5.addGeometry([
    Part.Circle(Vector(-70.5, 67.65, 0), Vector(0, 0, 1), 2),  # 0
    Part.Circle(Vector(0, 67.65, 0), Vector(0, 0, 1), 2),  # 1
    Part.Circle(Vector(70.5, 67.65, 0), Vector(0, 0, 1), 2),  # 2
    Part.Circle(Vector(24.1, -67.65, 0), Vector(0, 0, 1), 2),  # 3
    Part.Circle(Vector(-24.1, -67.65, 0), Vector(0, 0, 1), 2),  # 4
], False)
sketch5.addConstraint([
    Sketcher.Constraint("Equal", 0, 1),
    Sketcher.Constraint("Equal", 1, 2),
    Sketcher.Constraint("Equal", 2, 3),
    Sketcher.Constraint("Equal", 3, 4),
    Sketcher.Constraint("Symmetric", 0, 3, 2, 3, -2),
    Sketcher.Constraint("Symmetric", 3, 3, 4, 3, -2),
    Sketcher.Constraint("PointOnObject", 1, 3, -2),
    Sketcher.Constraint("Horizontal", 0, 3, 1, 3),
    Sketcher.Constraint("Diameter", 0, 4.0),
    Sketcher.Constraint("DistanceX", 0, 3, 2, 3, 141.0),
    Sketcher.Constraint("DistanceX", -1, 1, 3, 3, 24.1),
    Sketcher.Constraint("DistanceY", 3, 3, 1, 3, 135.3),
    Sketcher.Constraint("DistanceY", -1, 1, 0, 3, 67.65),
])
pad5 = doc.addObject("PartDesign::Pad", "Pad004")
body.addObject(pad5)
pad5.Profile = sketch5
pad5.Length = 10

doc.recompute()
